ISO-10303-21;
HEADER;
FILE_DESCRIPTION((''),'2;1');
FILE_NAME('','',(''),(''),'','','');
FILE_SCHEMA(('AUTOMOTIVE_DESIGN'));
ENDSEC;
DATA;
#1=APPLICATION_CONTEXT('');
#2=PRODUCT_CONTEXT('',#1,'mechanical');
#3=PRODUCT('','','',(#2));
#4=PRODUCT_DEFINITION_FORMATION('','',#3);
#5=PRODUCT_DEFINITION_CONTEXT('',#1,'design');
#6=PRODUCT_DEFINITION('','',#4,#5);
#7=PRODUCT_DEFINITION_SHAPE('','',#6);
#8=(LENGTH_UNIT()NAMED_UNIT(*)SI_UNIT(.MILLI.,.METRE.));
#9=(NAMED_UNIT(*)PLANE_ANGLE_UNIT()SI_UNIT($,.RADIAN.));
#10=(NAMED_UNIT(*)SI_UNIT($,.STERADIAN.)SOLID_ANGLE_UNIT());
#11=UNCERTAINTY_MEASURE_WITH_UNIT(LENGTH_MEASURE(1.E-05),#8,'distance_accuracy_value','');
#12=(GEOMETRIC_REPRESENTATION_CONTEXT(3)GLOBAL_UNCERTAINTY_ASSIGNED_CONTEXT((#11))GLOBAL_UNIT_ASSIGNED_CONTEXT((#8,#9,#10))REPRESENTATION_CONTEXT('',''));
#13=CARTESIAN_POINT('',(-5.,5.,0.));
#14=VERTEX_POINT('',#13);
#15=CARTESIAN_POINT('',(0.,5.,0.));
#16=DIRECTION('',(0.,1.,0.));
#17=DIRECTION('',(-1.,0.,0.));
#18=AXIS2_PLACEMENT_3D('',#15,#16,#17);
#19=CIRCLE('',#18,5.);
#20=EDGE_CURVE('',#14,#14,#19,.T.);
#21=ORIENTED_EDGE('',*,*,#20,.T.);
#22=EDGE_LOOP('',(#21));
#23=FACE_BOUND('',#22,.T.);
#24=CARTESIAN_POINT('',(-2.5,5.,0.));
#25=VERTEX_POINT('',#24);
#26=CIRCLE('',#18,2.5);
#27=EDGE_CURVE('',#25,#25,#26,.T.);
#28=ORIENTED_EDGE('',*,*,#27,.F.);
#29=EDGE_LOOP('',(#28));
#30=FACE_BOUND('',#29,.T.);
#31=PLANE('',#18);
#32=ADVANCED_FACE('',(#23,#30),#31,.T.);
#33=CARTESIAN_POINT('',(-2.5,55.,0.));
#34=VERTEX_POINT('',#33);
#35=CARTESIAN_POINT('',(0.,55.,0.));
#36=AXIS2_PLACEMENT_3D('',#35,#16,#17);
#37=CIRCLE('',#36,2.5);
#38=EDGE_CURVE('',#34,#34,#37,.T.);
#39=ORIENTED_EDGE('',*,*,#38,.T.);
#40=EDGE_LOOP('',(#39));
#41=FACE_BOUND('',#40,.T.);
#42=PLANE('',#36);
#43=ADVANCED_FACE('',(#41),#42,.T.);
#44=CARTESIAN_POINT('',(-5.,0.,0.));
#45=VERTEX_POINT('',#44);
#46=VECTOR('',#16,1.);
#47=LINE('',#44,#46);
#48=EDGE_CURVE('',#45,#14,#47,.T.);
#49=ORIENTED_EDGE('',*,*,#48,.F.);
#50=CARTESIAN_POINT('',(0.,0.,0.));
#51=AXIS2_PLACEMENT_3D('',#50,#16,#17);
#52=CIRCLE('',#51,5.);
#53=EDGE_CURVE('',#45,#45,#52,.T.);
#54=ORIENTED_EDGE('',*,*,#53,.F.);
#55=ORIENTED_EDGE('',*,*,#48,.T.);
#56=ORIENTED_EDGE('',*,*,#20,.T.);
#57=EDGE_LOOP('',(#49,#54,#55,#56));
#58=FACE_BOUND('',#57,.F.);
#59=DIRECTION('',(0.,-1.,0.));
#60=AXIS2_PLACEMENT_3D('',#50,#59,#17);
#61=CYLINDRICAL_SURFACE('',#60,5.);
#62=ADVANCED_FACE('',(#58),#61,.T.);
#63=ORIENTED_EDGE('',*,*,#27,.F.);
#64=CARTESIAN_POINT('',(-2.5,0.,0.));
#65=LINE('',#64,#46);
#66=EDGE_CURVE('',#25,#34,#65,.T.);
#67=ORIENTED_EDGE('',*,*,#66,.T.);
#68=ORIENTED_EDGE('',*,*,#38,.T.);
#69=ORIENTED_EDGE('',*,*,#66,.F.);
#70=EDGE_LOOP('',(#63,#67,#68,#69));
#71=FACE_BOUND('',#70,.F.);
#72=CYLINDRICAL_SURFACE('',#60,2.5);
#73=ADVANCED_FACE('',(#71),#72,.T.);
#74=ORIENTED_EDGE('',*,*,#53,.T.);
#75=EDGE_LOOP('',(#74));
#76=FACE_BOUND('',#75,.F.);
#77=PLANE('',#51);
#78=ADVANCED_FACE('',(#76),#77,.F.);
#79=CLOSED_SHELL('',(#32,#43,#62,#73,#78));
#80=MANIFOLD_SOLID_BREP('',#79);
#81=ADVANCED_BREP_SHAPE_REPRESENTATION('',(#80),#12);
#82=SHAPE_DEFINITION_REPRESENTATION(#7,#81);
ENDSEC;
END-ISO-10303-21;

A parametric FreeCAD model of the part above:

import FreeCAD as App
import Part
import Sketcher

doc = App.newDocument("Part")
params = doc.addObject("Spreadsheet::Sheet", "Params")
for row, (alias, value) in enumerate([
    ("sketch1_diameter", "10 mm"),
    ("sketch1_diameter2", "5 mm"),
    ("pad1_length", "5 mm"),
    ("sketch2_diameter", "5 mm"),
    ("pad2_length", "55 mm"),
], start=1):
    params.set(f"A{row}", alias)
    params.set(f"B{row}", "=" + value)
    params.setAlias(f"B{row}", alias)

body = doc.addObject("PartDesign::Body", "Body")

sketch1 = body.newObject("Sketcher::SketchObject", "Sketch")
sketch1.AttachmentSupport = (doc.getObject("XZ_Plane"), [""])
sketch1.MapMode = "FlatFace"
sketch1.addGeometry([
    Part.Circle(App.Vector(0, 0, 0), App.Vector(0, 0, 1), 5),
    Part.Circle(App.Vector(0, 0, 0), App.Vector(0, 0, 1), 2.5),
], False)
sketch1.addConstraint([
    Sketcher.Constraint("Coincident", 0, 3, -1, 1),
    Sketcher.Constraint("Coincident", 1, 3, -1, 1),
    Sketcher.Constraint("Diameter", 0, 10.0),
    Sketcher.Constraint("Diameter", 1, 5.0),
])
sketch1.setExpression("Constraints[2]", "Params.sketch1_diameter")
sketch1.setExpression("Constraints[3]", "Params.sketch1_diameter2")
pad1 = body.newObject("PartDesign::Pad", "Pad")
pad1.Profile = sketch1
pad1.setExpression("Length", "Params.pad1_length")
pad1.Reversed = True

sketch2 = body.newObject("Sketcher::SketchObject", "Sketch001")
sketch2.AttachmentSupport = (doc.getObject("XZ_Plane"), [""])
sketch2.MapMode = "FlatFace"
sketch2.addGeometry(Part.Circle(App.Vector(0, 0, 0), App.Vector(0, 0, 1), 2.5), False)
sketch2.addConstraint([
    Sketcher.Constraint("Coincident", 0, 3, -1, 1),
    Sketcher.Constraint("Diameter", 0, 5.0),
])
sketch2.setExpression("Constraints[1]", "Params.sketch2_diameter")
pad2 = body.newObject("PartDesign::Pad", "Pad001")
pad2.Profile = sketch2
pad2.setExpression("Length", "Params.pad2_length")
pad2.Reversed = True

doc.recompute()
